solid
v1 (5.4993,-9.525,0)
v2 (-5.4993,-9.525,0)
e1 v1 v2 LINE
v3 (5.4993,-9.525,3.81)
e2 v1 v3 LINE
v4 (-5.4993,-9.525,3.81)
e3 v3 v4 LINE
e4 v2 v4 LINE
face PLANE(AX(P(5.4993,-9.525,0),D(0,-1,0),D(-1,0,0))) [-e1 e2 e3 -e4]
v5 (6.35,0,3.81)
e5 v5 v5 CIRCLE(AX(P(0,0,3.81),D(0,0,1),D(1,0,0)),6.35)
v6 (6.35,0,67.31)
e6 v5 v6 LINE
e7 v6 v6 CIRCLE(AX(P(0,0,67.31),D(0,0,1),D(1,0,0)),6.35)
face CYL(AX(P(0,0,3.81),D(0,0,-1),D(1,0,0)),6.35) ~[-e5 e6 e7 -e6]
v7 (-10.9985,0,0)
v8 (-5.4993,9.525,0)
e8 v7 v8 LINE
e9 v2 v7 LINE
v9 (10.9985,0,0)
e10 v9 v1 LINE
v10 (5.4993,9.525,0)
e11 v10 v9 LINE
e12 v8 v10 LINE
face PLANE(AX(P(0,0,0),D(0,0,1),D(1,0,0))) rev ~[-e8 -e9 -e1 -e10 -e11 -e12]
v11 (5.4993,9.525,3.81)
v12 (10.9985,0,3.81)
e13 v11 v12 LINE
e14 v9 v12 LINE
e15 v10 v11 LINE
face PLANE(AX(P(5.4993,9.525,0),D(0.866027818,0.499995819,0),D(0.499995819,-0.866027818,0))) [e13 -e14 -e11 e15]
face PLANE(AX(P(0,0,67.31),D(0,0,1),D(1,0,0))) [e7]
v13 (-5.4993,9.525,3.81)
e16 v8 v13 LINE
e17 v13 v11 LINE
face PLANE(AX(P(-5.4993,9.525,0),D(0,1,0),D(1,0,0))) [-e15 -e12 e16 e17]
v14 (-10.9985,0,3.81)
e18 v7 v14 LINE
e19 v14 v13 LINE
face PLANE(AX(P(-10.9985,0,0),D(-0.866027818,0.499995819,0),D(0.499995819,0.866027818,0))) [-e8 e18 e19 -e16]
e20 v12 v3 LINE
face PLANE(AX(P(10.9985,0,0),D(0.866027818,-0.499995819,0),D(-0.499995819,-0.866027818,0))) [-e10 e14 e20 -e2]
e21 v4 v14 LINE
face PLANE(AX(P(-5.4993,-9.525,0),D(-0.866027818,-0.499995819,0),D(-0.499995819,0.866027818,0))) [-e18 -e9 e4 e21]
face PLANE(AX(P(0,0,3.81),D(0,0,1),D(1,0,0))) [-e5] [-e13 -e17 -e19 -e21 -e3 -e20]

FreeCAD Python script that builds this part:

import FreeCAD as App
import Part
import Sketcher
Q = App.Units.Quantity


def add_polygon(sketch, points):
    """Adds a closed chain of lines whose ends are joined by coincident constraints."""
    first, n = sketch.GeometryCount, len(points)
    for a, b in zip(points, points[1:] + points[:1]):
        sketch.addGeometry(Part.LineSegment(App.Vector(*a, 0), App.Vector(*b, 0)), False)
    for i in range(n):
        sketch.addConstraint(Sketcher.Constraint("Coincident", first + i, 2, first + (i + 1) % n, 1))

doc = App.newDocument("Part")
body = doc.addObject("PartDesign::Body", "Body")

sketch1 = doc.addObject("Sketcher::SketchObject", "Sketch")
body.addObject(sketch1)
sketch1.AttachmentSupport = (doc.XY_Plane, [""])
sketch1.MapMode = "FlatFace"
add_polygon(sketch1, [(-5, 10), (-11, 0), (-5, -10), (5, -10), (11, 0), (5, 10)])
sketch1.addConstraint([
    Sketcher.Constraint("Horizontal", 2),
    Sketcher.Constraint("Horizontal", 5),
    Sketcher.Constraint("Symmetric", 0, 2, 3, 2, -1, 1),
    Sketcher.Constraint("Symmetric", 1, 2, 4, 2, -1, 1),
    Sketcher.Constraint("PointOnObject", 0, 2, -1),
    Sketcher.Constraint("Parallel", 0, 3),
    Sketcher.Constraint("Vertical", 2, 2, 4, 2),
    Sketcher.Constraint("DistanceY", 2, 2, 4, 2, Q("0.75 in")),
    Sketcher.Constraint("Angle", 0, Q("-119.9997 deg")),
    Sketcher.Constraint("DistanceX", 0, 2, -1, 1, Q("0.433 in")),
])
pad1 = doc.addObject("PartDesign::Pad", "Pad")
body.addObject(pad1)
pad1.Profile = sketch1
pad1.Length = Q("0.15 in")

sketch2 = doc.addObject("Sketcher::SketchObject", "Sketch001")
body.addObject(sketch2)
sketch2.AttachmentSupport = (doc.XY_Plane, [""])
sketch2.MapMode = "FlatFace"
sketch2.AttachmentOffset = App.Placement(App.Vector(0, 0, 0.15 * 25.4), App.Rotation())
sketch2.addGeometry(Part.Circle(App.Vector(0, 0, 0), App.Vector(0, 0, 1), 6), False)
sketch2.addConstraint([
    Sketcher.Constraint("Coincident", 0, 3, -1, 1),
    Sketcher.Constraint("Diameter", 0, Q("0.5 in")),
])
pad2 = doc.addObject("PartDesign::Pad", "Pad001")
body.addObject(pad2)
pad2.Profile = sketch2
pad2.Length = Q("2.5 in")

doc.recompute()
